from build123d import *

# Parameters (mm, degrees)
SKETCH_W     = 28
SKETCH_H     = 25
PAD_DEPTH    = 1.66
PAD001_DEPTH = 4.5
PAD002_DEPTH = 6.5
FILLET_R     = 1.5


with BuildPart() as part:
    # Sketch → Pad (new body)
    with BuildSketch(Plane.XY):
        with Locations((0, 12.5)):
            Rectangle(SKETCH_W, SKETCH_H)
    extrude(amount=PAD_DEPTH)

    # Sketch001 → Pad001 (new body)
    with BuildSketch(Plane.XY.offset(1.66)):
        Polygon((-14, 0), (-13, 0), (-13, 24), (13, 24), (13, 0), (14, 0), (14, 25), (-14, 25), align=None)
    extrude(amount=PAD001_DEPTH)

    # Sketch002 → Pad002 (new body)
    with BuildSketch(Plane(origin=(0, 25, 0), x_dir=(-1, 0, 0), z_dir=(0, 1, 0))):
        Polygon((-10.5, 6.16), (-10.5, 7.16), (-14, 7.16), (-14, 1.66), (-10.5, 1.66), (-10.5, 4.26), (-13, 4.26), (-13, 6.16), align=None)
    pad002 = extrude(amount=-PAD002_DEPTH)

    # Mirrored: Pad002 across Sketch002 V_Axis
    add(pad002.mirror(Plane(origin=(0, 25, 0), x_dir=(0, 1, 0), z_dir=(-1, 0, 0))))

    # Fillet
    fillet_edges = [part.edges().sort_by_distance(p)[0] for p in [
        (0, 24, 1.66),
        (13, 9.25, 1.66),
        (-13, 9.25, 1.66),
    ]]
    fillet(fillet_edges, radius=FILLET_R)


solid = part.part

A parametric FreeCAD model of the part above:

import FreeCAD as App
import Part
import Sketcher
from FreeCAD import Vector


def edges_at(feature, points):
    """Names of the edges that pass closest to the given points."""
    edges = feature.Shape.Edges
    near = lambda p: min(range(len(edges)), key=lambda i: edges[i].distToShape(Part.Vertex(*p))[0])
    return sorted({f"Edge{near(p) + 1}" for p in points})


def add_polygon(sketch, points):
    """Adds a closed chain of lines whose ends are joined by coincident constraints."""
    first, n = sketch.GeometryCount, len(points)
    for a, b in zip(points, points[1:] + points[:1]):
        sketch.addGeometry(Part.LineSegment(App.Vector(*a, 0), App.Vector(*b, 0)), False)
    for i in range(n):
        sketch.addConstraint(Sketcher.Constraint("Coincident", first + i, 2, first + (i + 1) % n, 1))

doc = App.newDocument("Part")
params = doc.addObject("Spreadsheet::Sheet", "Params")
for row, (alias, value) in enumerate([
    ("sketch1_width", "28 mm"),
    ("sketch1_height", "25 mm"),
    ("pad1_length", "1.66 mm"),
    ("sketch2_width", "1 mm"),
    ("sketch2_width2", "26 mm"),
    ("sketch2_height", "24 mm"),
    ("sketch2_height2", "25 mm"),
    ("pad2_length", "4.5 mm"),
    ("sketch3_height", "1 mm"),
    ("sketch3_width", "3.5 mm"),
    ("sketch3_width2", "2.5 mm"),
    ("sketch3_height2", "5.5 mm"),
    ("sketch3_height3", "2.6 mm"),
    ("pad3_length", "6.5 mm"),
    ("fillet_radius", "1.5 mm"),
], start=1):
    params.set(f"A{row}", alias)
    params.set(f"B{row}", "=" + value)
    params.setAlias(f"B{row}", alias)

body = doc.addObject("PartDesign::Body", "Body")

# Sketch on XY plane
sketch1 = doc.addObject("Sketcher::SketchObject", "Sketch")
body.addObject(sketch1)
sketch1.AttachmentSupport = (doc.XY_Plane, [""])
sketch1.MapMode = "FlatFace"
add_polygon(sketch1, [(-14, 25), (-14, 0), (14, 0), (14, 25)])  # lines 0-3
sketch1.addConstraint([
    Sketcher.Constraint("Vertical", 0),
    Sketcher.Constraint("Horizontal", 1),
    Sketcher.Constraint("Vertical", 2),
    Sketcher.Constraint("Horizontal", 3),
    Sketcher.Constraint("Symmetric", 0, 2, 1, 2, -1, 1),
    Sketcher.Constraint("DistanceX", 1, 1, 1, 2, 28.0),
    Sketcher.Constraint("DistanceY", 0, 2, 0, 1, 25.0),
])
sketch1.setExpression("Constraints[9]", "Params.sketch1_width")
sketch1.setExpression("Constraints[10]", "Params.sketch1_height")
pad1 = doc.addObject("PartDesign::Pad", "Pad")
body.addObject(pad1)
pad1.Profile = sketch1
pad1.setExpression("Length", "Params.pad1_length")

# Sketch on XY plane
sketch2 = doc.addObject("Sketcher::SketchObject", "Sketch001")
body.addObject(sketch2)
sketch2.AttachmentSupport = (doc.XY_Plane, [""])
sketch2.MapMode = "FlatFace"
sketch2.AttachmentOffset = App.Placement(Vector(0, 0, 1.66), App.Rotation())
add_polygon(sketch2, [(-14, 0), (-13, 0), (-13, 24), (13, 24), (13, 0), (14, 0), (14, 25), (-14, 25)])  # lines 0-7
sketch2.addConstraint([
    Sketcher.Constraint("Horizontal", 0),
    Sketcher.Constraint("Vertical", 1),
    Sketcher.Constraint("Horizontal", 2),
    Sketcher.Constraint("Vertical", 3),
    Sketcher.Constraint("Horizontal", 4),
    Sketcher.Constraint("Vertical", 5),
    Sketcher.Constraint("Horizontal", 6),
    Sketcher.Constraint("Vertical", 7),
    Sketcher.Constraint("Symmetric", 0, 2, 3, 2, -1, 1),
    Sketcher.Constraint("Symmetric", 4, 2, 7, 2, -2),
    Sketcher.Constraint("DistanceX", 0, 1, 0, 2, 1.0),
    Sketcher.Constraint("DistanceX", 2, 1, 2, 2, 26.0),
    Sketcher.Constraint("DistanceY", 1, 1, 1, 2, 24.0),
    Sketcher.Constraint("DistanceY", 5, 1, 5, 2, 25.0),
])
sketch2.setExpression("Constraints[18]", "Params.sketch2_width")
sketch2.setExpression("Constraints[19]", "Params.sketch2_width2")
sketch2.setExpression("Constraints[20]", "Params.sketch2_height")
sketch2.setExpression("Constraints[21]", "Params.sketch2_height2")
pad2 = doc.addObject("PartDesign::Pad", "Pad001")
body.addObject(pad2)
pad2.Profile = sketch2
pad2.setExpression("Length", "Params.pad2_length")

# Sketch on XZ plane
sketch3 = doc.addObject("Sketcher::SketchObject", "Sketch002")
body.addObject(sketch3)
sketch3.AttachmentSupport = (doc.XZ_Plane, [""])
sketch3.MapMode = "FlatFace"
sketch3.AttachmentOffset = App.Placement(Vector(0, 0, -25), App.Rotation())
add_polygon(sketch3, [(10.5, 6.2), (10.5, 7.2), (14, 7.2), (14, 1.7), (10.5, 1.7), (10.5, 4.3), (13, 4.3), (13, 6.2)])  # lines 0-7
sketch3.addConstraint([
    Sketcher.Constraint("Vertical", 0),
    Sketcher.Constraint("Horizontal", 1),
    Sketcher.Constraint("Vertical", 2),
    Sketcher.Constraint("Horizontal", 3),
    Sketcher.Constraint("Vertical", 4),
    Sketcher.Constraint("Horizontal", 5),
    Sketcher.Constraint("Vertical", 6),
    Sketcher.Constraint("Horizontal", 7),
    Sketcher.Constraint("Vertical", 0, 2, 3, 2),
    Sketcher.Constraint("DistanceY", 0, 1, 0, 2, 1.0),
    Sketcher.Constraint("DistanceX", 1, 1, 1, 2, 3.5),
    Sketcher.Constraint("DistanceX", 5, 1, 5, 2, 2.5),
    Sketcher.Constraint("DistanceY", 2, 2, 2, 1, 5.5),
    Sketcher.Constraint("DistanceY", 4, 1, 4, 2, 2.6),
    Sketcher.Constraint("DistanceX", -1, 1, 1, 2, 14.0),
    Sketcher.Constraint("DistanceY", -1, 1, 0, 2, 7.16),
])
sketch3.setExpression("Constraints[17]", "Params.sketch3_height")
sketch3.setExpression("Constraints[18]", "Params.sketch3_width")
sketch3.setExpression("Constraints[19]", "Params.sketch3_width2")
sketch3.setExpression("Constraints[20]", "Params.sketch3_height2")
sketch3.setExpression("Constraints[21]", "Params.sketch3_height3")
pad3 = doc.addObject("PartDesign::Pad", "Pad002")
body.addObject(pad3)
pad3.Profile = sketch3
pad3.setExpression("Length", "Params.pad3_length")
doc.recompute()

mirrored = doc.addObject("PartDesign::Mirrored", "Mirrored")
body.addObject(mirrored)
mirrored.Originals = [pad3]
mirrored.MirrorPlane = (doc.YZ_Plane, [""])
body.Tip = mirrored
doc.recompute()

fillet = doc.addObject("PartDesign::Fillet", "Fillet")
body.addObject(fillet)
fillet.Base = (mirrored, edges_at(mirrored, [(0, 24, 1.66), (13, 9.25, 1.66), (-13, 9.25, 1.66)]))
fillet.setExpression("Radius", "Params.fillet_radius")

doc.recompute()
